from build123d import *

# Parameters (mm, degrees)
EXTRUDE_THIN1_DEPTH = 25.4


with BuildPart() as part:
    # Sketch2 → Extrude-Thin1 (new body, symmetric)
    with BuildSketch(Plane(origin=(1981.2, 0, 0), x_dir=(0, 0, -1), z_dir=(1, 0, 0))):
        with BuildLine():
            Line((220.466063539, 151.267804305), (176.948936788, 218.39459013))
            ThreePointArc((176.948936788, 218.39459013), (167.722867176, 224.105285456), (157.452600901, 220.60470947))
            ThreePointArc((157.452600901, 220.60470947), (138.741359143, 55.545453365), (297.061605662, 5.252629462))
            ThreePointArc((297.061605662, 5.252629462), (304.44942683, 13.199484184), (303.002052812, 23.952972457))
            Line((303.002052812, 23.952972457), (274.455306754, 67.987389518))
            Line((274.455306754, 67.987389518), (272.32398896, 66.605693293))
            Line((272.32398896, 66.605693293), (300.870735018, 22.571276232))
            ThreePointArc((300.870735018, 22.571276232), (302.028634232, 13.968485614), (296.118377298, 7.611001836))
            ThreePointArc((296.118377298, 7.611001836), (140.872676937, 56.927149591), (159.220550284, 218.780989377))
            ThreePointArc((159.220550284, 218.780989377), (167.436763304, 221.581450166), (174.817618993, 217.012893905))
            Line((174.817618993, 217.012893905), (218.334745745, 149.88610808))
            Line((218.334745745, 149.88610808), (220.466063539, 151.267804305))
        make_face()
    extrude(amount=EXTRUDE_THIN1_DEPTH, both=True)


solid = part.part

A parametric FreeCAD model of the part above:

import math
import FreeCAD as App
import Part
import Sketcher
Q = App.Units.Quantity

doc = App.newDocument("Part")
body = doc.addObject("PartDesign::Body", "Body")

sketch1 = doc.addObject("Sketcher::SketchObject", "Sketch")
body.addObject(sketch1)
sketch1.AttachmentSupport = (doc.YZ_Plane, [""])
sketch1.MapMode = "FlatFace"
sketch1.AttachmentOffset = App.Placement(App.Vector(0, 0, 78 * 25.4), App.Rotation())
sketch1.addGeometry(Part.LineSegment(App.Vector(151.267804, -220.466064, 0), App.Vector(218.39459, -176.948937, 0)), False)
sketch1.addGeometry(Part.ArcOfCircle(Part.Circle(App.Vector(211.486109, -166.292348, 0), App.Vector(0, 0, 1), 12.7), math.radians(-57.045361), math.radians(44.110394)), False)
sketch1.addGeometry(Part.ArcOfCircle(Part.Circle(App.Vector(126.694324, -248.491137, 0), App.Vector(0, 0, 1), 130.794402), math.radians(44.110394), math.radians(201.798884)), False)
sketch1.addGeometry(Part.ArcOfCircle(Part.Circle(App.Vector(17.044491, -292.345464, 0), App.Vector(0, 0, 1), 12.7), math.radians(-158.201116), math.radians(-57.045361)), False)
sketch1.addGeometry(Part.LineSegment(App.Vector(23.952972, -303.002053, 0), App.Vector(67.98739, -274.455307, 0)), False)
sketch1.addGeometry(Part.LineSegment(App.Vector(67.98739, -274.455307, 0), App.Vector(66.605693, -272.323989, 0)), False)
sketch1.addGeometry(Part.LineSegment(App.Vector(66.605693, -272.323989, 0), App.Vector(22.571276, -300.870735, 0)), False)
sketch1.addGeometry(Part.ArcOfCircle(Part.Circle(App.Vector(17.044491, -292.345464, 0), App.Vector(0, 0, 1), 10.16), math.radians(-158.201116), math.radians(-57.045361)), False)
sketch1.addGeometry(Part.ArcOfCircle(Part.Circle(App.Vector(126.694324, -248.491137, 0), App.Vector(0, 0, 1), 128.254402), math.radians(44.110394), math.radians(201.798884)), False)
sketch1.addGeometry(Part.ArcOfCircle(Part.Circle(App.Vector(211.486109, -166.292348, 0), App.Vector(0, 0, 1), 10.16), math.radians(-57.045361), math.radians(44.110394)), False)
sketch1.addGeometry(Part.LineSegment(App.Vector(217.012894, -174.817619, 0), App.Vector(149.886108, -218.334746, 0)), False)
sketch1.addGeometry(Part.LineSegment(App.Vector(149.886108, -218.334746, 0), App.Vector(151.267804, -220.466064, 0)), False)
sketch1.addConstraint(Sketcher.Constraint("Tangent", 0, 2, 1, 1))
sketch1.addConstraint(Sketcher.Constraint("Tangent", 1, 2, 2, 1))
sketch1.addConstraint(Sketcher.Constraint("Tangent", 2, 2, 3, 1))
sketch1.addConstraint(Sketcher.Constraint("Tangent", 3, 2, 4, 1))
sketch1.addConstraint(Sketcher.Constraint("Coincident", 4, 2, 5, 1))
sketch1.addConstraint(Sketcher.Constraint("Coincident", 5, 2, 6, 1))
sketch1.addConstraint(Sketcher.Constraint("Tangent", 6, 2, 7, 2))
sketch1.addConstraint(Sketcher.Constraint("Tangent", 7, 1, 8, 2))
sketch1.addConstraint(Sketcher.Constraint("Tangent", 8, 1, 9, 2))
sketch1.addConstraint(Sketcher.Constraint("Tangent", 9, 1, 10, 1))
sketch1.addConstraint(Sketcher.Constraint("Coincident", 10, 2, 11, 1))
sketch1.addConstraint(Sketcher.Constraint("Coincident", 11, 2, 0, 1))
sketch1.addConstraint(Sketcher.Constraint("Coincident", 7, 3, 3, 3))
sketch1.addConstraint(Sketcher.Constraint("Coincident", 8, 3, 2, 3))
sketch1.addConstraint(Sketcher.Constraint("Coincident", 9, 3, 1, 3))
sketch1.addConstraint(Sketcher.Constraint("Equal", 1, 3))
sketch1.addConstraint(Sketcher.Constraint("Parallel", 0, 4))
sketch1.addConstraint(Sketcher.Constraint("Perpendicular", 4, 5))
sketch1.addConstraint(Sketcher.Constraint("Perpendicular", 5, 6))
sketch1.addConstraint(Sketcher.Constraint("Parallel", 6, 10))
sketch1.addConstraint(Sketcher.Constraint("Perpendicular", 10, 11))
sketch1.addConstraint(Sketcher.Constraint("Radius", 1, Q("0.5 in")))
sketch1.addConstraint(Sketcher.Constraint("Radius", 7, Q("0.4 in")))
sketch1.addConstraint(Sketcher.Constraint("Radius", 2, 130.794402))
sketch1.addConstraint(Sketcher.Constraint("DistanceX", 9, 3, 1, 2, Q("0.359 in")))
sketch1.addConstraint(Sketcher.Constraint("DistanceY", 1, 2, -1, 1, 157.452601))
sketch1.addConstraint(Sketcher.Constraint("DistanceX", -1, 1, 7, 1, 7.611002))
sketch1.addConstraint(Sketcher.Constraint("DistanceY", 8, 3, 0, 2, 71.5422))
sketch1.addConstraint(Sketcher.Constraint("DistanceX", 7, 3, 0, 2, 201.350099))
sketch1.addConstraint(Sketcher.Constraint("DistanceX", 7, 3, 4, 2, 50.942898))
sketch1.addConstraint(Sketcher.Constraint("DistanceX", 10, 2, 1, 3, 61.600001))
pad1 = doc.addObject("PartDesign::Pad", "Pad")
body.addObject(pad1)
pad1.Profile = sketch1
pad1.Length = Q("2 in")
pad1.Midplane = True

doc.recompute()
